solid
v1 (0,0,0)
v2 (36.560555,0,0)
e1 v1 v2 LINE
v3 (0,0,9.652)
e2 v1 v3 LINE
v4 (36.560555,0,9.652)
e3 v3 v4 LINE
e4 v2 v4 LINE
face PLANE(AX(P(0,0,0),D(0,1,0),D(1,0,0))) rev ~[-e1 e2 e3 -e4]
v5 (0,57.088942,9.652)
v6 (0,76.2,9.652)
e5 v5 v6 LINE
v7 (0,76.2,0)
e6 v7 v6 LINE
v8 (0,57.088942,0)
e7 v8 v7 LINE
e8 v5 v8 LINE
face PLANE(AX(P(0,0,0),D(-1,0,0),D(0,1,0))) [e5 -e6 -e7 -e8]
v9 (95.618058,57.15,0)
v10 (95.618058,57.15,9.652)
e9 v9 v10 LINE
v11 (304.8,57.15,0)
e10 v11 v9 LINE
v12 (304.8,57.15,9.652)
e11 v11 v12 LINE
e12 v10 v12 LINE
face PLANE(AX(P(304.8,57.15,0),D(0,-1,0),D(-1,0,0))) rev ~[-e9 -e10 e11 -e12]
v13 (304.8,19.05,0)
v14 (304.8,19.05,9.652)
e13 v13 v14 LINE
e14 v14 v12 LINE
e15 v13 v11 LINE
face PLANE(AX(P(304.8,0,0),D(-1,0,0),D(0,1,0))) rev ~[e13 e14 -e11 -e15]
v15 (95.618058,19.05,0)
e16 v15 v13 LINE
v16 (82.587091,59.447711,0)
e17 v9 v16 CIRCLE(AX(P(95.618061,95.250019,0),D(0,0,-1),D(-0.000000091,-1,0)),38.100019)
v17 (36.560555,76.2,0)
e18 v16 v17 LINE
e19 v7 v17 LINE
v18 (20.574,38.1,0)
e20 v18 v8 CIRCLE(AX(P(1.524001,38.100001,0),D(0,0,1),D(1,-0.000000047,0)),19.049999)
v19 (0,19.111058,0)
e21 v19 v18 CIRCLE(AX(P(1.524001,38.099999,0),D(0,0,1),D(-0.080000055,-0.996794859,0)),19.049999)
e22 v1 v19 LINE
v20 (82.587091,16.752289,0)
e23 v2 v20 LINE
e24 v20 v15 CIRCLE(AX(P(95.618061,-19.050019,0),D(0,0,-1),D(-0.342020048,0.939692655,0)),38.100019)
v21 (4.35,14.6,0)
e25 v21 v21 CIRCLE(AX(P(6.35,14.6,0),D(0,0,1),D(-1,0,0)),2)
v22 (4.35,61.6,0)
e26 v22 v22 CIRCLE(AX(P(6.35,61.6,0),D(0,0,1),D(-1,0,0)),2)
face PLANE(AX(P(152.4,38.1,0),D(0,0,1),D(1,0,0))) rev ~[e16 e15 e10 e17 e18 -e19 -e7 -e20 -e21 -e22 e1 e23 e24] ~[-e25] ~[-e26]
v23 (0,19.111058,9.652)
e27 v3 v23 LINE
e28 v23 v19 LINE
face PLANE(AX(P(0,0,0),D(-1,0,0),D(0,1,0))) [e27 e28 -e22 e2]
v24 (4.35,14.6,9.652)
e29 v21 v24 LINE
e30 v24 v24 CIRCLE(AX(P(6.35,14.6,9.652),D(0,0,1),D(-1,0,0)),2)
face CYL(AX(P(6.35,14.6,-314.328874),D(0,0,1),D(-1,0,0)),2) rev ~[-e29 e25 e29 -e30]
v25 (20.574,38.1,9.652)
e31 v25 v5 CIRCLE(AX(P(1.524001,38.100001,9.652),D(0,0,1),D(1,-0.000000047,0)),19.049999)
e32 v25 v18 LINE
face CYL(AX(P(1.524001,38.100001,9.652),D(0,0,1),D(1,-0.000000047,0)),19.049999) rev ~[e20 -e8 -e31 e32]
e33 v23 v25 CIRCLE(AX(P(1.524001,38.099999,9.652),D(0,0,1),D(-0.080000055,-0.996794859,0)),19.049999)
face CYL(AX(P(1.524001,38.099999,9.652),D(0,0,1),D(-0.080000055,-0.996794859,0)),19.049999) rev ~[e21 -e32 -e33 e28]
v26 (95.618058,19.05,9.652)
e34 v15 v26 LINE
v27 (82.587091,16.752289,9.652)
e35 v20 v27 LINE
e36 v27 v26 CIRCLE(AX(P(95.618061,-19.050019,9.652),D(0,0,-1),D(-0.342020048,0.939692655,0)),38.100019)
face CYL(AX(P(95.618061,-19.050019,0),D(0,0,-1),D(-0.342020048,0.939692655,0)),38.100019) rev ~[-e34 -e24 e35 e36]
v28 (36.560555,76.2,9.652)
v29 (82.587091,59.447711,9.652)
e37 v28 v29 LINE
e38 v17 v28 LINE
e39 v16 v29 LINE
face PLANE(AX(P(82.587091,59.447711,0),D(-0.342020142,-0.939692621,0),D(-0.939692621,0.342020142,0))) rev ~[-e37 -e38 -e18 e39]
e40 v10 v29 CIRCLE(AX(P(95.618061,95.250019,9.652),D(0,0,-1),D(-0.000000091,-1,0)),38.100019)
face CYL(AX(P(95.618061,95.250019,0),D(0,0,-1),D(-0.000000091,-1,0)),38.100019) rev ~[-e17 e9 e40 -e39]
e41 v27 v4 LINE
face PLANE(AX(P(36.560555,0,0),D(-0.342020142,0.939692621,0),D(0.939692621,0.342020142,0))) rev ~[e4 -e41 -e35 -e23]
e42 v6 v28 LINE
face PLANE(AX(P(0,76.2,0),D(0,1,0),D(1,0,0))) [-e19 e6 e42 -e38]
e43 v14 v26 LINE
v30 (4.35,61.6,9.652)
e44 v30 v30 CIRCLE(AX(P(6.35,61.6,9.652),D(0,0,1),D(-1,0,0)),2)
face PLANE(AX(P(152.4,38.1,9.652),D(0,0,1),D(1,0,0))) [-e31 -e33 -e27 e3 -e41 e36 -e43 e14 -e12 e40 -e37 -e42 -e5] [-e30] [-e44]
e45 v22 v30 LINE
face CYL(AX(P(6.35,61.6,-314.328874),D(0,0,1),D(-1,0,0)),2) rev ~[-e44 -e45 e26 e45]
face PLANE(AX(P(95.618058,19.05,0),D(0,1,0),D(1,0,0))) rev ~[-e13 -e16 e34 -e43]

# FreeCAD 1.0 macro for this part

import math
import FreeCAD as App
import Part
import Sketcher

V = App.Vector
Q = App.Units.Quantity

doc = App.newDocument("Part")
params = doc.addObject("Spreadsheet::Sheet", "Params")
for row, (alias, value) in enumerate([
    ("sketch1_width", "12 in"),
    ("sketch1_height", "3 in"),
    ("pad1_length", "0.38 in"),
    ("sketch2_radius", "0.75 in"),
    ("sketch3_height", "0.75 in"),
    ("pocket2_length", "1 in"),
    ("hole_diameter", "4 mm"),
], start=1):
    params.set(f"A{row}", alias)
    params.set(f"B{row}", "=" + value)
    params.setAlias(f"B{row}", alias)

body = doc.addObject("PartDesign::Body", "Body")

# Sketch on XY plane
sketch1 = body.newObject("Sketcher::SketchObject", "Sketch")
sketch1.AttachmentSupport = (doc.getObject("XY_Plane"), [""])
sketch1.MapMode = "FlatFace"
sketch1.addGeometry(Part.LineSegment(V(0, 76, 0), V(0, 0, 0)), False)
sketch1.addGeometry(Part.LineSegment(V(0, 0, 0), V(305, 0, 0)), False)
sketch1.addGeometry(Part.LineSegment(V(305, 0, 0), V(305, 76, 0)), False)
sketch1.addGeometry(Part.LineSegment(V(305, 76, 0), V(0, 76, 0)), False)
sketch1.addConstraint(Sketcher.Constraint("Coincident", 0, 2, 1, 1))
sketch1.addConstraint(Sketcher.Constraint("Coincident", 1, 2, 2, 1))
sketch1.addConstraint(Sketcher.Constraint("Coincident", 2, 2, 3, 1))
sketch1.addConstraint(Sketcher.Constraint("Coincident", 3, 2, 0, 1))
sketch1.addConstraint(Sketcher.Constraint("Vertical", 0))
sketch1.addConstraint(Sketcher.Constraint("Horizontal", 1))
sketch1.addConstraint(Sketcher.Constraint("Vertical", 2))
sketch1.addConstraint(Sketcher.Constraint("Horizontal", 3))
sketch1.addConstraint(Sketcher.Constraint("Coincident", 0, 2, -1, 1))
sketch1.addConstraint(Sketcher.Constraint("DistanceX", 1, 1, 1, 2, Q("12 in")))
sketch1.addConstraint(Sketcher.Constraint("DistanceY", 0, 2, 0, 1, Q("3 in")))
sketch1.setExpression("Constraints[9]", "Params.sketch1_width")
sketch1.setExpression("Constraints[10]", "Params.sketch1_height")
pad1 = body.newObject("PartDesign::Pad", "Pad")
pad1.Profile = sketch1
pad1.setExpression("Length", "Params.pad1_length")

# Sketch on XY plane
sketch2 = body.newObject("Sketcher::SketchObject", "Sketch001")
sketch2.AttachmentSupport = (doc.getObject("XY_Plane"), [""])
sketch2.MapMode = "FlatFace"
sketch2.AttachmentOffset = App.Placement(V(0, 0, 0.38 * 25.4), App.Rotation())
sketch2.addGeometry(Part.ArcOfCircle(Part.Circle(V(2, 38, 0), V(0, 0, 1), 19), math.radians(-95), math.radians(0)), False)
sketch2.addGeometry(Part.ArcOfCircle(Part.Circle(V(2, 38, 0), V(0, 0, 1), 19), math.radians(0), math.radians(95)), False)
sketch2.addGeometry(Part.LineSegment(V(0, 57, 0), V(0, 19, 0)), False)
sketch2.addConstraint(Sketcher.Constraint("Tangent", 0, 2, 1, 1))
sketch2.addConstraint(Sketcher.Constraint("Coincident", 1, 2, 2, 1))
sketch2.addConstraint(Sketcher.Constraint("Coincident", 2, 2, 0, 1))
sketch2.addConstraint(Sketcher.Constraint("Vertical", 2))
sketch2.addConstraint(Sketcher.Constraint("Equal", 0, 1))
sketch2.addConstraint(Sketcher.Constraint("PointOnObject", 1, 2, -2))
sketch2.addConstraint(Sketcher.Constraint("Horizontal", 1, 3, 0, 2))
sketch2.addConstraint(Sketcher.Constraint("Radius", 0, Q("0.75 in")))
sketch2.addConstraint(Sketcher.Constraint("DistanceY", -1, 1, 0, 3, Q("1.5 in")))
sketch2.addConstraint(Sketcher.Constraint("DistanceX", -1, 1, 0, 3, Q("0.06 in")))
sketch2.setExpression("Constraints[7]", "Params.sketch2_radius")
pocket1 = body.newObject("PartDesign::Pocket", "Pocket")
pocket1.Profile = sketch2
pocket1.Type = "ThroughAll"

# Sketch on XY plane
sketch3 = body.newObject("Sketcher::SketchObject", "Sketch002")
sketch3.AttachmentSupport = (doc.getObject("XY_Plane"), [""])
sketch3.MapMode = "FlatFace"
sketch3.addGeometry(Part.LineSegment(V(305, 0, 0), V(37, 0, 0)), False)
sketch3.addGeometry(Part.LineSegment(V(37, 0, 0), V(83, 17, 0)), False)
sketch3.addGeometry(Part.ArcOfCircle(Part.Circle(V(96, -19, 0), V(0, 0, 1), 38), math.radians(90), math.radians(110)), False)
sketch3.addGeometry(Part.LineSegment(V(96, 19, 0), V(305, 19, 0)), False)
sketch3.addGeometry(Part.LineSegment(V(305, 19, 0), V(305, 0, 0)), False)
sketch3.addGeometry(Part.LineSegment(V(305, 76, 0), V(305, 57, 0)), False)
sketch3.addGeometry(Part.LineSegment(V(305, 57, 0), V(96, 57, 0)), False)
sketch3.addGeometry(Part.ArcOfCircle(Part.Circle(V(96, 95, 0), V(0, 0, 1), 38), math.radians(-110), math.radians(-90)), False)
sketch3.addGeometry(Part.LineSegment(V(83, 59, 0), V(37, 76, 0)), False)
sketch3.addGeometry(Part.LineSegment(V(37, 76, 0), V(305, 76, 0)), False)
sketch3.addConstraint(Sketcher.Constraint("Coincident", 0, 2, 1, 1))
sketch3.addConstraint(Sketcher.Constraint("Tangent", 1, 2, 2, 2))
sketch3.addConstraint(Sketcher.Constraint("Tangent", 2, 1, 3, 1))
sketch3.addConstraint(Sketcher.Constraint("Coincident", 3, 2, 4, 1))
sketch3.addConstraint(Sketcher.Constraint("Coincident", 4, 2, 0, 1))
sketch3.addConstraint(Sketcher.Constraint("Coincident", 5, 2, 6, 1))
sketch3.addConstraint(Sketcher.Constraint("Tangent", 6, 2, 7, 2))
sketch3.addConstraint(Sketcher.Constraint("Tangent", 7, 1, 8, 1))
sketch3.addConstraint(Sketcher.Constraint("Coincident", 8, 2, 9, 1))
sketch3.addConstraint(Sketcher.Constraint("Coincident", 9, 2, 5, 1))
sketch3.addConstraint(Sketcher.Constraint("Horizontal", 0))
sketch3.addConstraint(Sketcher.Constraint("Horizontal", 3))
sketch3.addConstraint(Sketcher.Constraint("Vertical", 4))
sketch3.addConstraint(Sketcher.Constraint("Vertical", 5))
sketch3.addConstraint(Sketcher.Constraint("Horizontal", 6))
sketch3.addConstraint(Sketcher.Constraint("Horizontal", 9))
sketch3.addConstraint(Sketcher.Constraint("Equal", 2, 7))
sketch3.addConstraint(Sketcher.Constraint("PointOnObject", 0, 2, -1))
sketch3.addConstraint(Sketcher.Constraint("Vertical", 2, 3, 7, 3))
sketch3.addConstraint(Sketcher.Constraint("Vertical", 4, 2, 5, 2))
sketch3.addConstraint(Sketcher.Constraint("Vertical", 1, 2, 7, 1))
sketch3.addConstraint(Sketcher.Constraint("Vertical", 0, 2, 8, 2))
sketch3.addConstraint(Sketcher.Constraint("DistanceX", -1, 1, 3, 2, Q("12 in")))
sketch3.addConstraint(Sketcher.Constraint("DistanceY", -1, 1, 8, 2, Q("3 in")))
sketch3.addConstraint(Sketcher.Constraint("Angle", 1, Q("20 deg")))
sketch3.addConstraint(Sketcher.Constraint("DistanceY", 4, 2, 4, 1, Q("0.75 in")))
sketch3.addConstraint(Sketcher.Constraint("Radius", 2, 38.100019))
sketch3.addConstraint(Sketcher.Constraint("DistanceX", 3, 1, 3, 2, 209.181942))
sketch3.setExpression("Constraints[25]", "Params.sketch3_height")
pocket2 = body.newObject("PartDesign::Pocket", "Pocket001")
pocket2.Profile = sketch3
pocket2.setExpression("Length", "Params.pocket2_length")
pocket2.Reversed = True

# Sketch on XY plane
sketch4 = body.newObject("Sketcher::SketchObject", "Sketch003")
sketch4.AttachmentSupport = (doc.getObject("XY_Plane"), [""])
sketch4.MapMode = "FlatFace"
sketch4.addGeometry(Part.Circle(V(6.3, 14.6, 0), V(0, 0, 1), 2), False)
sketch4.addGeometry(Part.Circle(V(6.3, 61.6, 0), V(0, 0, 1), 2), False)
sketch4.addConstraint(Sketcher.Constraint("Equal", 0, 1))
sketch4.addConstraint(Sketcher.Constraint("Vertical", 0, 3, 1, 3))
sketch4.addConstraint(Sketcher.Constraint("Diameter", 0, 4.0))
sketch4.addConstraint(Sketcher.Constraint("DistanceX", -1, 1, 0, 3, Q("0.25 in")))
sketch4.addConstraint(Sketcher.Constraint("DistanceY", -1, 1, 0, 3, 14.6))
sketch4.addConstraint(Sketcher.Constraint("DistanceY", -1, 1, 1, 3, 61.6))
doc.recompute()
hole = body.newObject("PartDesign::Hole", "Hole")
hole.Profile = sketch4
hole.ThreadType = "None"
hole.setExpression("Diameter", "Params.hole_diameter")
hole.DepthType = "ThroughAll"
hole.Reversed = True

doc.recompute()
